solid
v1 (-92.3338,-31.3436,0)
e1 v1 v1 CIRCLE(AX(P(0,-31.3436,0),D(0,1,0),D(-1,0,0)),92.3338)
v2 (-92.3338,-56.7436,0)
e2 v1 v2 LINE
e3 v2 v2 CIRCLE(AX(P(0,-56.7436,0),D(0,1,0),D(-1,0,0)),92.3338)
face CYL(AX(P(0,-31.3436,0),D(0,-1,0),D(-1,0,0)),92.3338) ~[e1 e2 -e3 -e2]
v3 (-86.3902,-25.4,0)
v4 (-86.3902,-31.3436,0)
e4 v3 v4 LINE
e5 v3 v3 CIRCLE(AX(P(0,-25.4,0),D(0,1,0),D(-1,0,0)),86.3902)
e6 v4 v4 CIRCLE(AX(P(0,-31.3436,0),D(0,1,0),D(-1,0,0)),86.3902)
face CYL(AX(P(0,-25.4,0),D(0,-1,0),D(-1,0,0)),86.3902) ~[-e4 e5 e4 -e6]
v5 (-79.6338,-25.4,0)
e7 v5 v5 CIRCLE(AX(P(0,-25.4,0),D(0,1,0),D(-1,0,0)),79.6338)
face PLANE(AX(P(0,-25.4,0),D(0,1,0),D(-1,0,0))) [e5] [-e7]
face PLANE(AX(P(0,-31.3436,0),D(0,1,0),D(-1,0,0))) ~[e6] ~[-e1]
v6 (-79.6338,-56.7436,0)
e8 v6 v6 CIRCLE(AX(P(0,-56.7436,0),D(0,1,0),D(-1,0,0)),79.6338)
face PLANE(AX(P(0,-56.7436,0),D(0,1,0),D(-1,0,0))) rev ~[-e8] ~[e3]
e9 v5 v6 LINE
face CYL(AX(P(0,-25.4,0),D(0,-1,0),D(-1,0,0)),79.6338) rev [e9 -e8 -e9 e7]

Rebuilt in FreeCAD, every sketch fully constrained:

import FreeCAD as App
import Part
import Sketcher

V = App.Vector
Q = App.Units.Quantity


def add_polygon(sketch, points):
    """Adds a closed chain of lines whose ends are joined by coincident constraints."""
    first, n = sketch.GeometryCount, len(points)
    for a, b in zip(points, points[1:] + points[:1]):
        sketch.addGeometry(Part.LineSegment(App.Vector(*a, 0), App.Vector(*b, 0)), False)
    for i in range(n):
        sketch.addConstraint(Sketcher.Constraint("Coincident", first + i, 2, first + (i + 1) % n, 1))

doc = App.newDocument("Part")
body = doc.addObject("PartDesign::Body", "Body")

# Sketch on XY plane
sketch1 = body.newObject("Sketcher::SketchObject", "Sketch")
sketch1.AttachmentSupport = (doc.getObject("XY_Plane"), [""])
sketch1.MapMode = "FlatFace"
add_polygon(sketch1, [(-79.6338, -25.4), (-86.3902, -25.4), (-86.3902, -31.3436), (-92.3338, -31.3436), (-92.3338, -56.7436), (-79.6338, -56.7436)])  # lines 0-5
sketch1.addConstraint(Sketcher.Constraint("Horizontal", 0))
sketch1.addConstraint(Sketcher.Constraint("Vertical", 1))
sketch1.addConstraint(Sketcher.Constraint("Horizontal", 2))
sketch1.addConstraint(Sketcher.Constraint("Vertical", 3))
sketch1.addConstraint(Sketcher.Constraint("Horizontal", 4))
sketch1.addConstraint(Sketcher.Constraint("Vertical", 5))
sketch1.addConstraint(Sketcher.Constraint("Equal", 2, 1))
sketch1.addConstraint(Sketcher.Constraint("DistanceY", 3, 2, 3, 1, Q("1 in")))
sketch1.addConstraint(Sketcher.Constraint("DistanceX", 4, 1, 4, 2, Q("0.5 in")))
sketch1.addConstraint(Sketcher.Constraint("DistanceY", 0, 2, -1, 1, Q("1 in")))
sketch1.addConstraint(Sketcher.Constraint("DistanceX", 2, 2, 2, 1, Q("0.234 in")))
sketch1.addConstraint(Sketcher.Constraint("DistanceX", 0, 2, -1, 1, Q("3.4012 in")))
revolution = body.newObject("PartDesign::Revolution", "Revolution")
revolution.Profile = sketch1
revolution.ReferenceAxis = (sketch1, ["V_Axis"])
revolution.Angle = 360

doc.recompute()
